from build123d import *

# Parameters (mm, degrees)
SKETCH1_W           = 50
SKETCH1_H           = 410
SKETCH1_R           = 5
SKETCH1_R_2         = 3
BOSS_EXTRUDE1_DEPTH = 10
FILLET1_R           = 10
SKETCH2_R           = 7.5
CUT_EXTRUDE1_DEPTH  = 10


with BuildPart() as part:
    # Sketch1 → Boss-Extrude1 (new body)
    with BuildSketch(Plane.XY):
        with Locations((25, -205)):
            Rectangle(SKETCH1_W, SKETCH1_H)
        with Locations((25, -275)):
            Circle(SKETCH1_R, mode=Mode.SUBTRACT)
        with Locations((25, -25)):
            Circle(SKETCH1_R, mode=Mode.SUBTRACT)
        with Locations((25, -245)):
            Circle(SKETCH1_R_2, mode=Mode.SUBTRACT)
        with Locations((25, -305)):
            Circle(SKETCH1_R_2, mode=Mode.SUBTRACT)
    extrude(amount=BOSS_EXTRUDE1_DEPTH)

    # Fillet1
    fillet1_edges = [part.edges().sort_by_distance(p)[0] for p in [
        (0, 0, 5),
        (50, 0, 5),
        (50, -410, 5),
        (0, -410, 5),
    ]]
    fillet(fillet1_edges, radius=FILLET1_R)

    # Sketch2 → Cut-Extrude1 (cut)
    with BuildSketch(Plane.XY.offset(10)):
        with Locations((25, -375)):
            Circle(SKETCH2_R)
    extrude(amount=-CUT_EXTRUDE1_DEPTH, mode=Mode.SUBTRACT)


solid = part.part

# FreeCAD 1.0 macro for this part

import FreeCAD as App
import Part
import Sketcher
Q = App.Units.Quantity


def edges_at(feature, points):
    """Names of the edges that pass closest to the given points."""
    edges = feature.Shape.Edges
    near = lambda p: min(range(len(edges)), key=lambda i: edges[i].distToShape(Part.Vertex(*p))[0])
    return sorted({f"Edge{near(p) + 1}" for p in points})

doc = App.newDocument("Part")
params = doc.addObject("Spreadsheet::Sheet", "Params")
for row, (alias, value) in enumerate([
    ("sketch1_diameter", "6 mm"),
    ("sketch1_diameter2", "10 mm"),
    ("sketch1_width", "50 mm"),
    ("sketch1_height", "410 mm"),
    ("pad1_length", "10 mm"),
    ("fillet_radius", "10 mm"),
    ("sketch2_diameter", "15 mm"),
    ("pocket1_length", "10 mm"),
], start=1):
    params.set(f"A{row}", alias)
    params.set(f"B{row}", "=" + value)
    params.setAlias(f"B{row}", alias)

body = doc.addObject("PartDesign::Body", "Body")

# Sketch on XY plane
sketch1 = doc.addObject("Sketcher::SketchObject", "Sketch")
body.addObject(sketch1)
sketch1.AttachmentSupport = (doc.XY_Plane, [""])
sketch1.MapMode = "FlatFace"
sketch1.addGeometry(Part.LineSegment(App.Vector(0, 0, 0), App.Vector(0, -410, 0)), False)
sketch1.addGeometry(Part.LineSegment(App.Vector(0, -410, 0), App.Vector(50, -410, 0)), False)
sketch1.addGeometry(Part.LineSegment(App.Vector(50, -410, 0), App.Vector(50, 0, 0)), False)
sketch1.addGeometry(Part.LineSegment(App.Vector(50, 0, 0), App.Vector(0, 0, 0)), False)
sketch1.addGeometry(Part.Circle(App.Vector(25, -305, 0), App.Vector(0, 0, 1), 3), False)
sketch1.addGeometry(Part.Circle(App.Vector(25, -275, 0), App.Vector(0, 0, 1), 5), False)
sketch1.addGeometry(Part.Circle(App.Vector(25, -245, 0), App.Vector(0, 0, 1), 3), False)
sketch1.addGeometry(Part.Circle(App.Vector(25, -25, 0), App.Vector(0, 0, 1), 5), False)
sketch1.addConstraint(Sketcher.Constraint("Coincident", 0, 2, 1, 1))
sketch1.addConstraint(Sketcher.Constraint("Coincident", 1, 2, 2, 1))
sketch1.addConstraint(Sketcher.Constraint("Coincident", 2, 2, 3, 1))
sketch1.addConstraint(Sketcher.Constraint("Coincident", 3, 2, 0, 1))
sketch1.addConstraint(Sketcher.Constraint("Vertical", 0))
sketch1.addConstraint(Sketcher.Constraint("Horizontal", 1))
sketch1.addConstraint(Sketcher.Constraint("Vertical", 2))
sketch1.addConstraint(Sketcher.Constraint("Horizontal", 3))
sketch1.addConstraint(Sketcher.Constraint("Coincident", 3, 2, -1, 1))
sketch1.addConstraint(Sketcher.Constraint("Equal", 4, 6))
sketch1.addConstraint(Sketcher.Constraint("Equal", 5, 7))
sketch1.addConstraint(Sketcher.Constraint("Vertical", 4, 3, 5, 3))
sketch1.addConstraint(Sketcher.Constraint("Vertical", 5, 3, 6, 3))
sketch1.addConstraint(Sketcher.Constraint("Vertical", 6, 3, 7, 3))
sketch1.addConstraint(Sketcher.Constraint("Diameter", 4, Q("6 mm")))
sketch1.addConstraint(Sketcher.Constraint("Diameter", 5, Q("10 mm")))
sketch1.addConstraint(Sketcher.Constraint("DistanceX", 1, 1, 1, 2, Q("50 mm")))
sketch1.addConstraint(Sketcher.Constraint("DistanceY", 0, 2, 0, 1, Q("410 mm")))
sketch1.addConstraint(Sketcher.Constraint("DistanceX", -1, 1, 4, 3, Q("25 mm")))
sketch1.addConstraint(Sketcher.Constraint("DistanceY", 4, 3, -1, 1, Q("305 mm")))
sketch1.addConstraint(Sketcher.Constraint("DistanceY", 5, 3, -1, 1, Q("275 mm")))
sketch1.addConstraint(Sketcher.Constraint("DistanceY", 6, 3, -1, 1, Q("245 mm")))
sketch1.addConstraint(Sketcher.Constraint("DistanceY", 7, 3, -1, 1, Q("25 mm")))
sketch1.setExpression("Constraints[14]", "Params.sketch1_diameter")
sketch1.setExpression("Constraints[15]", "Params.sketch1_diameter2")
sketch1.setExpression("Constraints[16]", "Params.sketch1_width")
sketch1.setExpression("Constraints[17]", "Params.sketch1_height")
pad1 = doc.addObject("PartDesign::Pad", "Pad")
body.addObject(pad1)
pad1.Profile = sketch1
pad1.setExpression("Length", "Params.pad1_length")
doc.recompute()

fillet = doc.addObject("PartDesign::Fillet", "Fillet")
body.addObject(fillet)
fillet.Base = (pad1, edges_at(pad1, [
    (0, 0, 5),
    (50, 0, 5),
    (50, -410, 5),
    (0, -410, 5),
]))
fillet.setExpression("Radius", "Params.fillet_radius")

# Sketch on XY plane
sketch2 = doc.addObject("Sketcher::SketchObject", "Sketch001")
body.addObject(sketch2)
sketch2.AttachmentSupport = (doc.XY_Plane, [""])
sketch2.MapMode = "FlatFace"
sketch2.AttachmentOffset = App.Placement(App.Vector(0, 0, 10), App.Rotation())
sketch2.addGeometry(Part.Circle(App.Vector(25, -375, 0), App.Vector(0, 0, 1), 8), False)
sketch2.addConstraint(Sketcher.Constraint("Diameter", 0, Q("15 mm")))
sketch2.addConstraint(Sketcher.Constraint("DistanceX", -1, 1, 0, 3, Q("25 mm")))
sketch2.addConstraint(Sketcher.Constraint("DistanceY", 0, 3, -1, 1, Q("375 mm")))
sketch2.setExpression("Constraints[0]", "Params.sketch2_diameter")
pocket1 = doc.addObject("PartDesign::Pocket", "Pocket")
body.addObject(pocket1)
pocket1.Profile = sketch2
pocket1.setExpression("Length", "Params.pocket1_length")

doc.recompute()
